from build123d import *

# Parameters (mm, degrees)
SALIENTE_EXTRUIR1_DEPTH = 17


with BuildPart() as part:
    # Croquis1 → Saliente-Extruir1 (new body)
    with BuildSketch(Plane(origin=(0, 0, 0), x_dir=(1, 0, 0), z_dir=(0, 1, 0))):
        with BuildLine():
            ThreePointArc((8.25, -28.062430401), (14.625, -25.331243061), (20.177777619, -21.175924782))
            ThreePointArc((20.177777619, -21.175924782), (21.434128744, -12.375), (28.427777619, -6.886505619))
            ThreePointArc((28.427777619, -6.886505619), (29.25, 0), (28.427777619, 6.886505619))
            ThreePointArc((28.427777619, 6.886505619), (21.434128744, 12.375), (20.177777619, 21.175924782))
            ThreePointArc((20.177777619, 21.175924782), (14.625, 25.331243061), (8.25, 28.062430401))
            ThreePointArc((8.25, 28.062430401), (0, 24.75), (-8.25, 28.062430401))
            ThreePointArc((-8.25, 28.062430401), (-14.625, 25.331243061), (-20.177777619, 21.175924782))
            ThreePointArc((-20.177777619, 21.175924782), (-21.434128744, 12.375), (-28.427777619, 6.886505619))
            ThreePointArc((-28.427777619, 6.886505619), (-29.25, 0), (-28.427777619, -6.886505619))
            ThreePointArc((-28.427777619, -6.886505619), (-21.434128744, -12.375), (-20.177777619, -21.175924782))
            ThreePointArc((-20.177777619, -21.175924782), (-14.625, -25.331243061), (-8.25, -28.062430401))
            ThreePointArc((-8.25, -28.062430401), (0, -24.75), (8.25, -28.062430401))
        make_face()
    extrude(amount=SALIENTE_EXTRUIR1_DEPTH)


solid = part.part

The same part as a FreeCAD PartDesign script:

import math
import FreeCAD as App
import Part
import Sketcher
from FreeCAD import Vector
Q = App.Units.Quantity

doc = App.newDocument("Part")
body = doc.addObject("PartDesign::Body", "Body")

# Sketch on XZ plane
sketch1 = body.newObject("Sketcher::SketchObject", "Sketch")
sketch1.AttachmentSupport = (doc.getObject("XZ_Plane"), [""])
sketch1.MapMode = "FlatFace"
sketch1.addGeometry([
    Part.ArcOfCircle(Part.Circle(Vector(0, 0, 0), Vector(0, 0, 1), 29), math.radians(46), math.radians(74)),  # 0
    Part.ArcOfCircle(Part.Circle(Vector(32, 18, 0), Vector(0, 0, 1), 12), math.radians(166), math.radians(254)),  # 1
    Part.ArcOfCircle(Part.Circle(Vector(0, 0, 0), Vector(0, 0, 1), 29), math.radians(-14), math.radians(14)),  # 2
    Part.ArcOfCircle(Part.Circle(Vector(32, -18, 0), Vector(0, 0, 1), 12), math.radians(106), math.radians(194)),  # 3
    Part.ArcOfCircle(Part.Circle(Vector(0, 0, 0), Vector(0, 0, 1), 29), math.radians(-74), math.radians(-46)),  # 4
    Part.ArcOfCircle(Part.Circle(Vector(0, -37, 0), Vector(0, 0, 1), 12), math.radians(46), math.radians(134)),  # 5
    Part.ArcOfCircle(Part.Circle(Vector(0, 0, 0), Vector(0, 0, 1), 29), math.radians(-134), math.radians(-106)),  # 6
    Part.ArcOfCircle(Part.Circle(Vector(-32, -18, 0), Vector(0, 0, 1), 12), math.radians(-14), math.radians(74)),  # 7
    Part.ArcOfCircle(Part.Circle(Vector(0, 0, 0), Vector(0, 0, 1), 29), math.radians(166), math.radians(194)),  # 8
    Part.ArcOfCircle(Part.Circle(Vector(-32, 18, 0), Vector(0, 0, 1), 12), math.radians(-74), math.radians(14)),  # 9
    Part.ArcOfCircle(Part.Circle(Vector(0, 0, 0), Vector(0, 0, 1), 29), math.radians(106), math.radians(134)),  # 10
    Part.ArcOfCircle(Part.Circle(Vector(0, 37, 0), Vector(0, 0, 1), 12), math.radians(-134), math.radians(-46)),  # 11
], False)
sketch1.addConstraint([
    Sketcher.Constraint("Coincident", 0, 1, 1, 1),
    Sketcher.Constraint("Coincident", 1, 2, 2, 2),
    Sketcher.Constraint("Coincident", 2, 1, 3, 1),
    Sketcher.Constraint("Coincident", 3, 2, 4, 2),
    Sketcher.Constraint("Coincident", 4, 1, 5, 1),
    Sketcher.Constraint("Coincident", 5, 2, 6, 2),
    Sketcher.Constraint("Coincident", 6, 1, 7, 1),
    Sketcher.Constraint("Coincident", 7, 2, 8, 2),
    Sketcher.Constraint("Coincident", 8, 1, 9, 1),
    Sketcher.Constraint("Coincident", 9, 2, 10, 2),
    Sketcher.Constraint("Coincident", 10, 1, 11, 1),
    Sketcher.Constraint("Coincident", 11, 2, 0, 2),
    Sketcher.Constraint("Coincident", 0, 3, -1, 1),
    Sketcher.Constraint("Coincident", 2, 3, -1, 1),
    Sketcher.Constraint("Coincident", 4, 3, -1, 1),
    Sketcher.Constraint("Coincident", 6, 3, -1, 1),
    Sketcher.Constraint("Coincident", 8, 3, -1, 1),
    Sketcher.Constraint("Coincident", 10, 3, -1, 1),
    Sketcher.Constraint("Equal", 0, 2),
    Sketcher.Constraint("Equal", 1, 3),
    Sketcher.Constraint("Equal", 2, 4),
    Sketcher.Constraint("Equal", 3, 5),
    Sketcher.Constraint("Equal", 4, 6),
    Sketcher.Constraint("Equal", 5, 7),
    Sketcher.Constraint("Equal", 6, 8),
    Sketcher.Constraint("Equal", 7, 9),
    Sketcher.Constraint("Equal", 8, 10),
    Sketcher.Constraint("Equal", 9, 11),
    Sketcher.Constraint("Symmetric", 1, 3, 7, 3, -1, 1),
    Sketcher.Constraint("Symmetric", 3, 3, 9, 3, -1, 1),
    Sketcher.Constraint("Symmetric", 5, 3, 11, 3, -1, 1),
    Sketcher.Constraint("Symmetric", 3, 3, 7, 3, -2),
    Sketcher.Constraint("PointOnObject", 5, 3, -2),
    Sketcher.Constraint("Radius", 0, Q("29.25 mm")),
    Sketcher.Constraint("DistanceX", 5, 2, 4, 1, Q("16.5 mm")),
    Sketcher.Constraint("DistanceX", 0, 1, 1, 2, Q("8.25 mm")),
    Sketcher.Constraint("Radius", 1, Q("11.930016 mm")),
    Sketcher.Constraint("DistanceX", 0, 1, 1, 3, Q("11.588048 mm")),
])
pad1 = body.newObject("PartDesign::Pad", "Pad")
pad1.Profile = sketch1
pad1.Length = 17
pad1.Reversed = True

doc.recompute()
